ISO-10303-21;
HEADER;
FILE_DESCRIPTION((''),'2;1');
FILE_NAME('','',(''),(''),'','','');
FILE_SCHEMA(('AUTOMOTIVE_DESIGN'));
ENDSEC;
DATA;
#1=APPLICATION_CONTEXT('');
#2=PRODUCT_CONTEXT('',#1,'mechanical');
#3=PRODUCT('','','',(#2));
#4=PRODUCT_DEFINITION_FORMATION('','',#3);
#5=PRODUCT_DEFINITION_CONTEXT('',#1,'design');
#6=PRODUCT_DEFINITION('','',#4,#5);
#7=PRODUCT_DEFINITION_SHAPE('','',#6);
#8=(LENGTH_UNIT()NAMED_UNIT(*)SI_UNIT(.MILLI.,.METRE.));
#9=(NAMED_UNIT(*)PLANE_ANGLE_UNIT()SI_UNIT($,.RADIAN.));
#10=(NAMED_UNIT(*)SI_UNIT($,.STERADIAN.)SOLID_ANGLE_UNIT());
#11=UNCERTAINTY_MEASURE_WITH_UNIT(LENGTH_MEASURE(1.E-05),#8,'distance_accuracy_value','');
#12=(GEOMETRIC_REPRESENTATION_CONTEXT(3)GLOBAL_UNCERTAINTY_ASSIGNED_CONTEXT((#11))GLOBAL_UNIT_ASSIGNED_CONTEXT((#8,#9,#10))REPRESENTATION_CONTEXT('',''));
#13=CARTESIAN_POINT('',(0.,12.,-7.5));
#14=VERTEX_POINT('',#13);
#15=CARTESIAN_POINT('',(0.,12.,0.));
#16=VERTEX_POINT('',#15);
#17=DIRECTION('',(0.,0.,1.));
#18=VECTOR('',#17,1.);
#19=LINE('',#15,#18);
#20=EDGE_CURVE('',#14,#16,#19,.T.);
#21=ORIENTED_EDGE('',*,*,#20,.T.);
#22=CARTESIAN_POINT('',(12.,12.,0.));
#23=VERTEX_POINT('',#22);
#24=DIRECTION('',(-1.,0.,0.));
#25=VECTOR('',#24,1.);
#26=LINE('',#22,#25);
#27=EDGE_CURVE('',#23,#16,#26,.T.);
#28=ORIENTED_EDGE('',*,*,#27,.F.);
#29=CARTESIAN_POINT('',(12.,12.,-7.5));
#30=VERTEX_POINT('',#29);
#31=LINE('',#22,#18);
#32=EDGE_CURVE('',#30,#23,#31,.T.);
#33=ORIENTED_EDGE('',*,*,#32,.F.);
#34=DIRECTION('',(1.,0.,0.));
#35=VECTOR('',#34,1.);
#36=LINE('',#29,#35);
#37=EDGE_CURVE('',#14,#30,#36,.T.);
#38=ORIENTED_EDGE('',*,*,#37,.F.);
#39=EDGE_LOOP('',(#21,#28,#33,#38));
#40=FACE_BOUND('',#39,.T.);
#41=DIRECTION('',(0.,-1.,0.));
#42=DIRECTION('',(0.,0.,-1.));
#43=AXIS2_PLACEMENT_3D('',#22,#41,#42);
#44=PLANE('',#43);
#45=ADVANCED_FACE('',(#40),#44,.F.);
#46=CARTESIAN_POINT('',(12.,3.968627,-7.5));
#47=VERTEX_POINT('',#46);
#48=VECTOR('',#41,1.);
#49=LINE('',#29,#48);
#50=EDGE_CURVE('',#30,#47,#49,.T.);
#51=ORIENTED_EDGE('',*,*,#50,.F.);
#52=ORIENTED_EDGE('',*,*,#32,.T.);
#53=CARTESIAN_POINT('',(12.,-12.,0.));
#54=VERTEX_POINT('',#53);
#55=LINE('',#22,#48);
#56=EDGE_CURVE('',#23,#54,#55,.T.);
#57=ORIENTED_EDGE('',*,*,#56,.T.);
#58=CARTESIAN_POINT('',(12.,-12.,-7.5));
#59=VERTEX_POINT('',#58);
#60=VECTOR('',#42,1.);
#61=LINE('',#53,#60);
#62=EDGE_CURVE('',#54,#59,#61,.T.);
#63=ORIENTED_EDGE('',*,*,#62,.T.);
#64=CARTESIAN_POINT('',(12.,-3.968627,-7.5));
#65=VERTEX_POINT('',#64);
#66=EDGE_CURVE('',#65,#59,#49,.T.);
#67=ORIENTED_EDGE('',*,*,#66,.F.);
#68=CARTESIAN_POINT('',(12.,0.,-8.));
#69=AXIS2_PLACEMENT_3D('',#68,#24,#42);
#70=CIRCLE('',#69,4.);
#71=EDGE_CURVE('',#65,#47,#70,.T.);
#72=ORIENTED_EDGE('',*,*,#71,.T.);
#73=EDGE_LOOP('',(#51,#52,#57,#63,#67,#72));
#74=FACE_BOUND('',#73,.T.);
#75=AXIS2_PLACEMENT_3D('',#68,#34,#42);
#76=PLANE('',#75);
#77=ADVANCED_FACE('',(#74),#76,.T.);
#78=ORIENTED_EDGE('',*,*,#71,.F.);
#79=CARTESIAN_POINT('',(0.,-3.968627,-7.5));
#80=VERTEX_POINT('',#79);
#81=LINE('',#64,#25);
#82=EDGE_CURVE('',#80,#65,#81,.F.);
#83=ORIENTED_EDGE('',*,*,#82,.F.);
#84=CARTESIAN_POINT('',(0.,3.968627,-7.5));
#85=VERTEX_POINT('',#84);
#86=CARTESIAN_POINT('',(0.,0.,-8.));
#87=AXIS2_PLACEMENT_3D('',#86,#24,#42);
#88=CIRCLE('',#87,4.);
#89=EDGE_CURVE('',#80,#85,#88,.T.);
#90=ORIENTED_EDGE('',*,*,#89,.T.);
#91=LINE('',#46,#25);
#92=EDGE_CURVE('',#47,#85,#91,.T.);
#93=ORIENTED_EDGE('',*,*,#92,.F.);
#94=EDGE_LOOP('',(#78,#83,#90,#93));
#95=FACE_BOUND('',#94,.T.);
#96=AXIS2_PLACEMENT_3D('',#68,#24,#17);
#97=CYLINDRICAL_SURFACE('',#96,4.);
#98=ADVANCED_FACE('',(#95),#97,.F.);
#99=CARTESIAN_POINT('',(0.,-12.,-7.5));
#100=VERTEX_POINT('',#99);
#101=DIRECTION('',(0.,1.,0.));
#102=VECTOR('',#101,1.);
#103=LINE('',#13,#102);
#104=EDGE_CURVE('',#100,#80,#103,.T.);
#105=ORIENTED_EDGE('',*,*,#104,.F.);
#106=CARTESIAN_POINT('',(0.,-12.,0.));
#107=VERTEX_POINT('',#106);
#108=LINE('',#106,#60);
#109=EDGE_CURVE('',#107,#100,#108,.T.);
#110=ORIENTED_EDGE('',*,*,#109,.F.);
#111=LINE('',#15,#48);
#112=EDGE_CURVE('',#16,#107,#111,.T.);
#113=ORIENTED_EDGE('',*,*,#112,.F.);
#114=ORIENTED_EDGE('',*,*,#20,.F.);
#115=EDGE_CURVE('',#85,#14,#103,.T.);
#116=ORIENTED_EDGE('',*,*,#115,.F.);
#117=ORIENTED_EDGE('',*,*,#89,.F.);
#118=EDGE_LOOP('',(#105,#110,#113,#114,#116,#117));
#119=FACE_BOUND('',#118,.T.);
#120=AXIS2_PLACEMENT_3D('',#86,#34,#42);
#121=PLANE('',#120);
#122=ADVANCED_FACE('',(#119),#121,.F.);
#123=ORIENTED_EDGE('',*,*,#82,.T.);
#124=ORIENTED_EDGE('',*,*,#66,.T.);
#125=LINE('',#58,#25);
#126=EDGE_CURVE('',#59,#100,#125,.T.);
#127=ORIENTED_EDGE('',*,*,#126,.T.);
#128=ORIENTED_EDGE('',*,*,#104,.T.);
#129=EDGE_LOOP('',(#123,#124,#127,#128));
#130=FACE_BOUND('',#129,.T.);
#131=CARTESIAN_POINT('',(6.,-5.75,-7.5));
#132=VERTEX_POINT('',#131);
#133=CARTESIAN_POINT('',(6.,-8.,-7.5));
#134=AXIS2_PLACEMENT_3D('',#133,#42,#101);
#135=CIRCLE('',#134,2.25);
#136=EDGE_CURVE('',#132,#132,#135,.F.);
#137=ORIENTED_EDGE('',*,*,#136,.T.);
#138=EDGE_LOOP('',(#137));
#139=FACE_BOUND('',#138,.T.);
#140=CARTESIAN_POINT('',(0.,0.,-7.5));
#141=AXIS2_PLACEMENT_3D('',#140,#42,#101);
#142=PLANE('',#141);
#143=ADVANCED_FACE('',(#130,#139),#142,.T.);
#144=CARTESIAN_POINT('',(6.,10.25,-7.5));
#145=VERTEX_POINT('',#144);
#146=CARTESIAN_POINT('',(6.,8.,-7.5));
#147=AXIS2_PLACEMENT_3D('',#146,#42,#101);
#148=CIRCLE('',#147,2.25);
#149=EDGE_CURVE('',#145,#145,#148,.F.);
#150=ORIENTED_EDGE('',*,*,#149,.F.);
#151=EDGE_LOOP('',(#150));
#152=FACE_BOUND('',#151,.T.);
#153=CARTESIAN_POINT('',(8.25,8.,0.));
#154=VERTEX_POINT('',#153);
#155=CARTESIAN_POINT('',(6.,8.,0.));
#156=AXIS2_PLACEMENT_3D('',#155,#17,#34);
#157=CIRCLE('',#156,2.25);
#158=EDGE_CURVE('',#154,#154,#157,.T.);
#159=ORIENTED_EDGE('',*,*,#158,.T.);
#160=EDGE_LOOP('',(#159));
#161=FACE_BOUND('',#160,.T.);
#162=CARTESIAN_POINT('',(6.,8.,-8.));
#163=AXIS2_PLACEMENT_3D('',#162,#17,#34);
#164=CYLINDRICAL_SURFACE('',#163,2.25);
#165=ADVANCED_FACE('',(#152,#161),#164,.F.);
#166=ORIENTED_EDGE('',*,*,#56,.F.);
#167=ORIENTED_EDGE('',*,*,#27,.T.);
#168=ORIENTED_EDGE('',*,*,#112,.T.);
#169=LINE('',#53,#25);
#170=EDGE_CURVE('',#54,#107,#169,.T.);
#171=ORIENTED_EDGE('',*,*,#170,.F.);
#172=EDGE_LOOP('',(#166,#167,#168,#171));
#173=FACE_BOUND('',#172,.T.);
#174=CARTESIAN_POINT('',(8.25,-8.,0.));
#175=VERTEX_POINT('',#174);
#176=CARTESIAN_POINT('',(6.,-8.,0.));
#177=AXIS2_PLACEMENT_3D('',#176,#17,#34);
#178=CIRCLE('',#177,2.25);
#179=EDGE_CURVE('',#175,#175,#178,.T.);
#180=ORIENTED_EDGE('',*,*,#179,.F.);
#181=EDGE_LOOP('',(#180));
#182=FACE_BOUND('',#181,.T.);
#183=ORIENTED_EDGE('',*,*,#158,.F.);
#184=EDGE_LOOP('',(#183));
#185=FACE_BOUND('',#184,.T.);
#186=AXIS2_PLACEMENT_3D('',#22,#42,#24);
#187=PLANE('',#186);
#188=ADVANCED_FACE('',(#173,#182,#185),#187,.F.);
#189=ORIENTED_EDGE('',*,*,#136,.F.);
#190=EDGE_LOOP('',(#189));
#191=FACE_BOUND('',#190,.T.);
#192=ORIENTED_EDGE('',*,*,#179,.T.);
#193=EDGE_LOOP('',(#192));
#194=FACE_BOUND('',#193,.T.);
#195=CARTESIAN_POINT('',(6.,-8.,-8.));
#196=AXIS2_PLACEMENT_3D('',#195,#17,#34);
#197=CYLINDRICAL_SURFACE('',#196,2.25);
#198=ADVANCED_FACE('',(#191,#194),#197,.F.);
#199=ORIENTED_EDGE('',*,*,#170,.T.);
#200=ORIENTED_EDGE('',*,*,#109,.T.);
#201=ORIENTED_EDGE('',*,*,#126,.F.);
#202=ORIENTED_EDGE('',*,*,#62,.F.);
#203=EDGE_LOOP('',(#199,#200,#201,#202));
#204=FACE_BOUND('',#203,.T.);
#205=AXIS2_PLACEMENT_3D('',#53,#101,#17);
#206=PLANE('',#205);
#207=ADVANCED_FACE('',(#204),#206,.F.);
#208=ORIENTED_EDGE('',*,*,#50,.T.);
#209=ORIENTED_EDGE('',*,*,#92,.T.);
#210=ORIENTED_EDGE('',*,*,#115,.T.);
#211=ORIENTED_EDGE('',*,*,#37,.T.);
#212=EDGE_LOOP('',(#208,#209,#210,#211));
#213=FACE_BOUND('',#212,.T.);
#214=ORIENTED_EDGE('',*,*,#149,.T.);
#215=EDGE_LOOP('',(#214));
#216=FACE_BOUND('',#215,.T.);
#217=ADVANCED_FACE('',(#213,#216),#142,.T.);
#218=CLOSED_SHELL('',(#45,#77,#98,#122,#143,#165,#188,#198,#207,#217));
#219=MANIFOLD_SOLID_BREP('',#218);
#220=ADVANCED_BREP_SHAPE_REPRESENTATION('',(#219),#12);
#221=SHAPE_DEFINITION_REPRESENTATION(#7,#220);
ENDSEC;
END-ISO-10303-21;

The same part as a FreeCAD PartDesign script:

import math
import FreeCAD as App
import Part
import Sketcher
from FreeCAD import Vector

doc = App.newDocument("Part")
body = doc.addObject("PartDesign::Body", "Body")

# Sketch on YZ plane
sketch1 = body.newObject("Sketcher::SketchObject", "Sketch")
sketch1.AttachmentSupport = (doc.getObject("YZ_Plane"), [""])
sketch1.MapMode = "FlatFace"
sketch1.addGeometry(Part.LineSegment(Vector(-12, -8, 0), Vector(-4, -8, 0)), False)
sketch1.addGeometry(Part.ArcOfCircle(Part.Circle(Vector(0, -8, 0), Vector(0, 0, 1), 4), math.radians(0), math.radians(180)), False)
sketch1.addGeometry(Part.LineSegment(Vector(4, -8, 0), Vector(12, -8, 0)), False)
sketch1.addGeometry(Part.LineSegment(Vector(12, -8, 0), Vector(12, 0, 0)), False)
sketch1.addGeometry(Part.LineSegment(Vector(12, 0, 0), Vector(-12, 0, 0)), False)
sketch1.addGeometry(Part.LineSegment(Vector(-12, 0, 0), Vector(-12, -8, 0)), False)
sketch1.addConstraint(Sketcher.Constraint("Coincident", 0, 2, 1, 2))
sketch1.addConstraint(Sketcher.Constraint("Coincident", 1, 1, 2, 1))
sketch1.addConstraint(Sketcher.Constraint("Coincident", 2, 2, 3, 1))
sketch1.addConstraint(Sketcher.Constraint("Coincident", 3, 2, 4, 1))
sketch1.addConstraint(Sketcher.Constraint("Coincident", 4, 2, 5, 1))
sketch1.addConstraint(Sketcher.Constraint("Coincident", 5, 2, 0, 1))
sketch1.addConstraint(Sketcher.Constraint("Horizontal", 0))
sketch1.addConstraint(Sketcher.Constraint("Horizontal", 2))
sketch1.addConstraint(Sketcher.Constraint("Vertical", 3))
sketch1.addConstraint(Sketcher.Constraint("Horizontal", 4))
sketch1.addConstraint(Sketcher.Constraint("Vertical", 5))
sketch1.addConstraint(Sketcher.Constraint("Symmetric", 3, 2, 4, 2, -1, 1))
sketch1.addConstraint(Sketcher.Constraint("Symmetric", 0, 2, 1, 1, -2))
sketch1.addConstraint(Sketcher.Constraint("Horizontal", 1, 3, 0, 2))
sketch1.addConstraint(Sketcher.Constraint("Equal", 2, 3))
sketch1.addConstraint(Sketcher.Constraint("Radius", 1, 4.0))
sketch1.addConstraint(Sketcher.Constraint("DistanceX", 0, 1, 0, 2, 8.0))
pad1 = body.newObject("PartDesign::Pad", "Pad")
pad1.Profile = sketch1
pad1.Length = 12

# Sketch on XY plane
sketch2 = body.newObject("Sketcher::SketchObject", "Sketch001")
sketch2.AttachmentSupport = (doc.getObject("XY_Plane"), [""])
sketch2.MapMode = "FlatFace"
sketch2.addGeometry(Part.Circle(Vector(6, 8, 0), Vector(0, 0, 1), 2.2), False)
sketch2.addGeometry(Part.Circle(Vector(6, -8, 0), Vector(0, 0, 1), 2.2), False)
sketch2.addConstraint(Sketcher.Constraint("Equal", 0, 1))
sketch2.addConstraint(Sketcher.Constraint("Symmetric", 0, 3, 1, 3, -1))
sketch2.addConstraint(Sketcher.Constraint("Diameter", 0, 4.5))
sketch2.addConstraint(Sketcher.Constraint("DistanceX", -1, 1, 0, 3, 6.0))
sketch2.addConstraint(Sketcher.Constraint("DistanceY", -1, 1, 0, 3, 8.0))
pocket1 = body.newObject("PartDesign::Pocket", "Pocket")
pocket1.Profile = sketch2
pocket1.Type = "ThroughAll"

# Sketch on XY plane
sketch3 = body.newObject("Sketcher::SketchObject", "Sketch002")
sketch3.AttachmentSupport = (doc.getObject("XY_Plane"), [""])
sketch3.MapMode = "FlatFace"
sketch3.AttachmentOffset = App.Placement(Vector(0, 0, -8), App.Rotation())
sketch3.addGeometry(Part.LineSegment(Vector(12, 12, 0), Vector(12, -12, 0)), False)
sketch3.addGeometry(Part.LineSegment(Vector(12, -12, 0), Vector(0, -12, 0)), False)
sketch3.addGeometry(Part.LineSegment(Vector(0, -12, 0), Vector(0, 12, 0)), False)
sketch3.addGeometry(Part.LineSegment(Vector(0, 12, 0), Vector(12, 12, 0)), False)
sketch3.addConstraint(Sketcher.Constraint("Coincident", 0, 2, 1, 1))
sketch3.addConstraint(Sketcher.Constraint("Coincident", 1, 2, 2, 1))
sketch3.addConstraint(Sketcher.Constraint("Coincident", 2, 2, 3, 1))
sketch3.addConstraint(Sketcher.Constraint("Coincident", 3, 2, 0, 1))
sketch3.addConstraint(Sketcher.Constraint("Vertical", 0))
sketch3.addConstraint(Sketcher.Constraint("Horizontal", 1))
sketch3.addConstraint(Sketcher.Constraint("Vertical", 2))
sketch3.addConstraint(Sketcher.Constraint("Horizontal", 3))
sketch3.addConstraint(Sketcher.Constraint("Symmetric", 1, 2, 2, 2, -1, 1))
sketch3.addConstraint(Sketcher.Constraint("DistanceX", 1, 2, 1, 1, 12.0))
sketch3.addConstraint(Sketcher.Constraint("DistanceY", 0, 2, 0, 1, 24.0))
pocket2 = body.newObject("PartDesign::Pocket", "Pocket001")
pocket2.Profile = sketch3
pocket2.Length = 0.5
pocket2.Reversed = True

doc.recompute()
